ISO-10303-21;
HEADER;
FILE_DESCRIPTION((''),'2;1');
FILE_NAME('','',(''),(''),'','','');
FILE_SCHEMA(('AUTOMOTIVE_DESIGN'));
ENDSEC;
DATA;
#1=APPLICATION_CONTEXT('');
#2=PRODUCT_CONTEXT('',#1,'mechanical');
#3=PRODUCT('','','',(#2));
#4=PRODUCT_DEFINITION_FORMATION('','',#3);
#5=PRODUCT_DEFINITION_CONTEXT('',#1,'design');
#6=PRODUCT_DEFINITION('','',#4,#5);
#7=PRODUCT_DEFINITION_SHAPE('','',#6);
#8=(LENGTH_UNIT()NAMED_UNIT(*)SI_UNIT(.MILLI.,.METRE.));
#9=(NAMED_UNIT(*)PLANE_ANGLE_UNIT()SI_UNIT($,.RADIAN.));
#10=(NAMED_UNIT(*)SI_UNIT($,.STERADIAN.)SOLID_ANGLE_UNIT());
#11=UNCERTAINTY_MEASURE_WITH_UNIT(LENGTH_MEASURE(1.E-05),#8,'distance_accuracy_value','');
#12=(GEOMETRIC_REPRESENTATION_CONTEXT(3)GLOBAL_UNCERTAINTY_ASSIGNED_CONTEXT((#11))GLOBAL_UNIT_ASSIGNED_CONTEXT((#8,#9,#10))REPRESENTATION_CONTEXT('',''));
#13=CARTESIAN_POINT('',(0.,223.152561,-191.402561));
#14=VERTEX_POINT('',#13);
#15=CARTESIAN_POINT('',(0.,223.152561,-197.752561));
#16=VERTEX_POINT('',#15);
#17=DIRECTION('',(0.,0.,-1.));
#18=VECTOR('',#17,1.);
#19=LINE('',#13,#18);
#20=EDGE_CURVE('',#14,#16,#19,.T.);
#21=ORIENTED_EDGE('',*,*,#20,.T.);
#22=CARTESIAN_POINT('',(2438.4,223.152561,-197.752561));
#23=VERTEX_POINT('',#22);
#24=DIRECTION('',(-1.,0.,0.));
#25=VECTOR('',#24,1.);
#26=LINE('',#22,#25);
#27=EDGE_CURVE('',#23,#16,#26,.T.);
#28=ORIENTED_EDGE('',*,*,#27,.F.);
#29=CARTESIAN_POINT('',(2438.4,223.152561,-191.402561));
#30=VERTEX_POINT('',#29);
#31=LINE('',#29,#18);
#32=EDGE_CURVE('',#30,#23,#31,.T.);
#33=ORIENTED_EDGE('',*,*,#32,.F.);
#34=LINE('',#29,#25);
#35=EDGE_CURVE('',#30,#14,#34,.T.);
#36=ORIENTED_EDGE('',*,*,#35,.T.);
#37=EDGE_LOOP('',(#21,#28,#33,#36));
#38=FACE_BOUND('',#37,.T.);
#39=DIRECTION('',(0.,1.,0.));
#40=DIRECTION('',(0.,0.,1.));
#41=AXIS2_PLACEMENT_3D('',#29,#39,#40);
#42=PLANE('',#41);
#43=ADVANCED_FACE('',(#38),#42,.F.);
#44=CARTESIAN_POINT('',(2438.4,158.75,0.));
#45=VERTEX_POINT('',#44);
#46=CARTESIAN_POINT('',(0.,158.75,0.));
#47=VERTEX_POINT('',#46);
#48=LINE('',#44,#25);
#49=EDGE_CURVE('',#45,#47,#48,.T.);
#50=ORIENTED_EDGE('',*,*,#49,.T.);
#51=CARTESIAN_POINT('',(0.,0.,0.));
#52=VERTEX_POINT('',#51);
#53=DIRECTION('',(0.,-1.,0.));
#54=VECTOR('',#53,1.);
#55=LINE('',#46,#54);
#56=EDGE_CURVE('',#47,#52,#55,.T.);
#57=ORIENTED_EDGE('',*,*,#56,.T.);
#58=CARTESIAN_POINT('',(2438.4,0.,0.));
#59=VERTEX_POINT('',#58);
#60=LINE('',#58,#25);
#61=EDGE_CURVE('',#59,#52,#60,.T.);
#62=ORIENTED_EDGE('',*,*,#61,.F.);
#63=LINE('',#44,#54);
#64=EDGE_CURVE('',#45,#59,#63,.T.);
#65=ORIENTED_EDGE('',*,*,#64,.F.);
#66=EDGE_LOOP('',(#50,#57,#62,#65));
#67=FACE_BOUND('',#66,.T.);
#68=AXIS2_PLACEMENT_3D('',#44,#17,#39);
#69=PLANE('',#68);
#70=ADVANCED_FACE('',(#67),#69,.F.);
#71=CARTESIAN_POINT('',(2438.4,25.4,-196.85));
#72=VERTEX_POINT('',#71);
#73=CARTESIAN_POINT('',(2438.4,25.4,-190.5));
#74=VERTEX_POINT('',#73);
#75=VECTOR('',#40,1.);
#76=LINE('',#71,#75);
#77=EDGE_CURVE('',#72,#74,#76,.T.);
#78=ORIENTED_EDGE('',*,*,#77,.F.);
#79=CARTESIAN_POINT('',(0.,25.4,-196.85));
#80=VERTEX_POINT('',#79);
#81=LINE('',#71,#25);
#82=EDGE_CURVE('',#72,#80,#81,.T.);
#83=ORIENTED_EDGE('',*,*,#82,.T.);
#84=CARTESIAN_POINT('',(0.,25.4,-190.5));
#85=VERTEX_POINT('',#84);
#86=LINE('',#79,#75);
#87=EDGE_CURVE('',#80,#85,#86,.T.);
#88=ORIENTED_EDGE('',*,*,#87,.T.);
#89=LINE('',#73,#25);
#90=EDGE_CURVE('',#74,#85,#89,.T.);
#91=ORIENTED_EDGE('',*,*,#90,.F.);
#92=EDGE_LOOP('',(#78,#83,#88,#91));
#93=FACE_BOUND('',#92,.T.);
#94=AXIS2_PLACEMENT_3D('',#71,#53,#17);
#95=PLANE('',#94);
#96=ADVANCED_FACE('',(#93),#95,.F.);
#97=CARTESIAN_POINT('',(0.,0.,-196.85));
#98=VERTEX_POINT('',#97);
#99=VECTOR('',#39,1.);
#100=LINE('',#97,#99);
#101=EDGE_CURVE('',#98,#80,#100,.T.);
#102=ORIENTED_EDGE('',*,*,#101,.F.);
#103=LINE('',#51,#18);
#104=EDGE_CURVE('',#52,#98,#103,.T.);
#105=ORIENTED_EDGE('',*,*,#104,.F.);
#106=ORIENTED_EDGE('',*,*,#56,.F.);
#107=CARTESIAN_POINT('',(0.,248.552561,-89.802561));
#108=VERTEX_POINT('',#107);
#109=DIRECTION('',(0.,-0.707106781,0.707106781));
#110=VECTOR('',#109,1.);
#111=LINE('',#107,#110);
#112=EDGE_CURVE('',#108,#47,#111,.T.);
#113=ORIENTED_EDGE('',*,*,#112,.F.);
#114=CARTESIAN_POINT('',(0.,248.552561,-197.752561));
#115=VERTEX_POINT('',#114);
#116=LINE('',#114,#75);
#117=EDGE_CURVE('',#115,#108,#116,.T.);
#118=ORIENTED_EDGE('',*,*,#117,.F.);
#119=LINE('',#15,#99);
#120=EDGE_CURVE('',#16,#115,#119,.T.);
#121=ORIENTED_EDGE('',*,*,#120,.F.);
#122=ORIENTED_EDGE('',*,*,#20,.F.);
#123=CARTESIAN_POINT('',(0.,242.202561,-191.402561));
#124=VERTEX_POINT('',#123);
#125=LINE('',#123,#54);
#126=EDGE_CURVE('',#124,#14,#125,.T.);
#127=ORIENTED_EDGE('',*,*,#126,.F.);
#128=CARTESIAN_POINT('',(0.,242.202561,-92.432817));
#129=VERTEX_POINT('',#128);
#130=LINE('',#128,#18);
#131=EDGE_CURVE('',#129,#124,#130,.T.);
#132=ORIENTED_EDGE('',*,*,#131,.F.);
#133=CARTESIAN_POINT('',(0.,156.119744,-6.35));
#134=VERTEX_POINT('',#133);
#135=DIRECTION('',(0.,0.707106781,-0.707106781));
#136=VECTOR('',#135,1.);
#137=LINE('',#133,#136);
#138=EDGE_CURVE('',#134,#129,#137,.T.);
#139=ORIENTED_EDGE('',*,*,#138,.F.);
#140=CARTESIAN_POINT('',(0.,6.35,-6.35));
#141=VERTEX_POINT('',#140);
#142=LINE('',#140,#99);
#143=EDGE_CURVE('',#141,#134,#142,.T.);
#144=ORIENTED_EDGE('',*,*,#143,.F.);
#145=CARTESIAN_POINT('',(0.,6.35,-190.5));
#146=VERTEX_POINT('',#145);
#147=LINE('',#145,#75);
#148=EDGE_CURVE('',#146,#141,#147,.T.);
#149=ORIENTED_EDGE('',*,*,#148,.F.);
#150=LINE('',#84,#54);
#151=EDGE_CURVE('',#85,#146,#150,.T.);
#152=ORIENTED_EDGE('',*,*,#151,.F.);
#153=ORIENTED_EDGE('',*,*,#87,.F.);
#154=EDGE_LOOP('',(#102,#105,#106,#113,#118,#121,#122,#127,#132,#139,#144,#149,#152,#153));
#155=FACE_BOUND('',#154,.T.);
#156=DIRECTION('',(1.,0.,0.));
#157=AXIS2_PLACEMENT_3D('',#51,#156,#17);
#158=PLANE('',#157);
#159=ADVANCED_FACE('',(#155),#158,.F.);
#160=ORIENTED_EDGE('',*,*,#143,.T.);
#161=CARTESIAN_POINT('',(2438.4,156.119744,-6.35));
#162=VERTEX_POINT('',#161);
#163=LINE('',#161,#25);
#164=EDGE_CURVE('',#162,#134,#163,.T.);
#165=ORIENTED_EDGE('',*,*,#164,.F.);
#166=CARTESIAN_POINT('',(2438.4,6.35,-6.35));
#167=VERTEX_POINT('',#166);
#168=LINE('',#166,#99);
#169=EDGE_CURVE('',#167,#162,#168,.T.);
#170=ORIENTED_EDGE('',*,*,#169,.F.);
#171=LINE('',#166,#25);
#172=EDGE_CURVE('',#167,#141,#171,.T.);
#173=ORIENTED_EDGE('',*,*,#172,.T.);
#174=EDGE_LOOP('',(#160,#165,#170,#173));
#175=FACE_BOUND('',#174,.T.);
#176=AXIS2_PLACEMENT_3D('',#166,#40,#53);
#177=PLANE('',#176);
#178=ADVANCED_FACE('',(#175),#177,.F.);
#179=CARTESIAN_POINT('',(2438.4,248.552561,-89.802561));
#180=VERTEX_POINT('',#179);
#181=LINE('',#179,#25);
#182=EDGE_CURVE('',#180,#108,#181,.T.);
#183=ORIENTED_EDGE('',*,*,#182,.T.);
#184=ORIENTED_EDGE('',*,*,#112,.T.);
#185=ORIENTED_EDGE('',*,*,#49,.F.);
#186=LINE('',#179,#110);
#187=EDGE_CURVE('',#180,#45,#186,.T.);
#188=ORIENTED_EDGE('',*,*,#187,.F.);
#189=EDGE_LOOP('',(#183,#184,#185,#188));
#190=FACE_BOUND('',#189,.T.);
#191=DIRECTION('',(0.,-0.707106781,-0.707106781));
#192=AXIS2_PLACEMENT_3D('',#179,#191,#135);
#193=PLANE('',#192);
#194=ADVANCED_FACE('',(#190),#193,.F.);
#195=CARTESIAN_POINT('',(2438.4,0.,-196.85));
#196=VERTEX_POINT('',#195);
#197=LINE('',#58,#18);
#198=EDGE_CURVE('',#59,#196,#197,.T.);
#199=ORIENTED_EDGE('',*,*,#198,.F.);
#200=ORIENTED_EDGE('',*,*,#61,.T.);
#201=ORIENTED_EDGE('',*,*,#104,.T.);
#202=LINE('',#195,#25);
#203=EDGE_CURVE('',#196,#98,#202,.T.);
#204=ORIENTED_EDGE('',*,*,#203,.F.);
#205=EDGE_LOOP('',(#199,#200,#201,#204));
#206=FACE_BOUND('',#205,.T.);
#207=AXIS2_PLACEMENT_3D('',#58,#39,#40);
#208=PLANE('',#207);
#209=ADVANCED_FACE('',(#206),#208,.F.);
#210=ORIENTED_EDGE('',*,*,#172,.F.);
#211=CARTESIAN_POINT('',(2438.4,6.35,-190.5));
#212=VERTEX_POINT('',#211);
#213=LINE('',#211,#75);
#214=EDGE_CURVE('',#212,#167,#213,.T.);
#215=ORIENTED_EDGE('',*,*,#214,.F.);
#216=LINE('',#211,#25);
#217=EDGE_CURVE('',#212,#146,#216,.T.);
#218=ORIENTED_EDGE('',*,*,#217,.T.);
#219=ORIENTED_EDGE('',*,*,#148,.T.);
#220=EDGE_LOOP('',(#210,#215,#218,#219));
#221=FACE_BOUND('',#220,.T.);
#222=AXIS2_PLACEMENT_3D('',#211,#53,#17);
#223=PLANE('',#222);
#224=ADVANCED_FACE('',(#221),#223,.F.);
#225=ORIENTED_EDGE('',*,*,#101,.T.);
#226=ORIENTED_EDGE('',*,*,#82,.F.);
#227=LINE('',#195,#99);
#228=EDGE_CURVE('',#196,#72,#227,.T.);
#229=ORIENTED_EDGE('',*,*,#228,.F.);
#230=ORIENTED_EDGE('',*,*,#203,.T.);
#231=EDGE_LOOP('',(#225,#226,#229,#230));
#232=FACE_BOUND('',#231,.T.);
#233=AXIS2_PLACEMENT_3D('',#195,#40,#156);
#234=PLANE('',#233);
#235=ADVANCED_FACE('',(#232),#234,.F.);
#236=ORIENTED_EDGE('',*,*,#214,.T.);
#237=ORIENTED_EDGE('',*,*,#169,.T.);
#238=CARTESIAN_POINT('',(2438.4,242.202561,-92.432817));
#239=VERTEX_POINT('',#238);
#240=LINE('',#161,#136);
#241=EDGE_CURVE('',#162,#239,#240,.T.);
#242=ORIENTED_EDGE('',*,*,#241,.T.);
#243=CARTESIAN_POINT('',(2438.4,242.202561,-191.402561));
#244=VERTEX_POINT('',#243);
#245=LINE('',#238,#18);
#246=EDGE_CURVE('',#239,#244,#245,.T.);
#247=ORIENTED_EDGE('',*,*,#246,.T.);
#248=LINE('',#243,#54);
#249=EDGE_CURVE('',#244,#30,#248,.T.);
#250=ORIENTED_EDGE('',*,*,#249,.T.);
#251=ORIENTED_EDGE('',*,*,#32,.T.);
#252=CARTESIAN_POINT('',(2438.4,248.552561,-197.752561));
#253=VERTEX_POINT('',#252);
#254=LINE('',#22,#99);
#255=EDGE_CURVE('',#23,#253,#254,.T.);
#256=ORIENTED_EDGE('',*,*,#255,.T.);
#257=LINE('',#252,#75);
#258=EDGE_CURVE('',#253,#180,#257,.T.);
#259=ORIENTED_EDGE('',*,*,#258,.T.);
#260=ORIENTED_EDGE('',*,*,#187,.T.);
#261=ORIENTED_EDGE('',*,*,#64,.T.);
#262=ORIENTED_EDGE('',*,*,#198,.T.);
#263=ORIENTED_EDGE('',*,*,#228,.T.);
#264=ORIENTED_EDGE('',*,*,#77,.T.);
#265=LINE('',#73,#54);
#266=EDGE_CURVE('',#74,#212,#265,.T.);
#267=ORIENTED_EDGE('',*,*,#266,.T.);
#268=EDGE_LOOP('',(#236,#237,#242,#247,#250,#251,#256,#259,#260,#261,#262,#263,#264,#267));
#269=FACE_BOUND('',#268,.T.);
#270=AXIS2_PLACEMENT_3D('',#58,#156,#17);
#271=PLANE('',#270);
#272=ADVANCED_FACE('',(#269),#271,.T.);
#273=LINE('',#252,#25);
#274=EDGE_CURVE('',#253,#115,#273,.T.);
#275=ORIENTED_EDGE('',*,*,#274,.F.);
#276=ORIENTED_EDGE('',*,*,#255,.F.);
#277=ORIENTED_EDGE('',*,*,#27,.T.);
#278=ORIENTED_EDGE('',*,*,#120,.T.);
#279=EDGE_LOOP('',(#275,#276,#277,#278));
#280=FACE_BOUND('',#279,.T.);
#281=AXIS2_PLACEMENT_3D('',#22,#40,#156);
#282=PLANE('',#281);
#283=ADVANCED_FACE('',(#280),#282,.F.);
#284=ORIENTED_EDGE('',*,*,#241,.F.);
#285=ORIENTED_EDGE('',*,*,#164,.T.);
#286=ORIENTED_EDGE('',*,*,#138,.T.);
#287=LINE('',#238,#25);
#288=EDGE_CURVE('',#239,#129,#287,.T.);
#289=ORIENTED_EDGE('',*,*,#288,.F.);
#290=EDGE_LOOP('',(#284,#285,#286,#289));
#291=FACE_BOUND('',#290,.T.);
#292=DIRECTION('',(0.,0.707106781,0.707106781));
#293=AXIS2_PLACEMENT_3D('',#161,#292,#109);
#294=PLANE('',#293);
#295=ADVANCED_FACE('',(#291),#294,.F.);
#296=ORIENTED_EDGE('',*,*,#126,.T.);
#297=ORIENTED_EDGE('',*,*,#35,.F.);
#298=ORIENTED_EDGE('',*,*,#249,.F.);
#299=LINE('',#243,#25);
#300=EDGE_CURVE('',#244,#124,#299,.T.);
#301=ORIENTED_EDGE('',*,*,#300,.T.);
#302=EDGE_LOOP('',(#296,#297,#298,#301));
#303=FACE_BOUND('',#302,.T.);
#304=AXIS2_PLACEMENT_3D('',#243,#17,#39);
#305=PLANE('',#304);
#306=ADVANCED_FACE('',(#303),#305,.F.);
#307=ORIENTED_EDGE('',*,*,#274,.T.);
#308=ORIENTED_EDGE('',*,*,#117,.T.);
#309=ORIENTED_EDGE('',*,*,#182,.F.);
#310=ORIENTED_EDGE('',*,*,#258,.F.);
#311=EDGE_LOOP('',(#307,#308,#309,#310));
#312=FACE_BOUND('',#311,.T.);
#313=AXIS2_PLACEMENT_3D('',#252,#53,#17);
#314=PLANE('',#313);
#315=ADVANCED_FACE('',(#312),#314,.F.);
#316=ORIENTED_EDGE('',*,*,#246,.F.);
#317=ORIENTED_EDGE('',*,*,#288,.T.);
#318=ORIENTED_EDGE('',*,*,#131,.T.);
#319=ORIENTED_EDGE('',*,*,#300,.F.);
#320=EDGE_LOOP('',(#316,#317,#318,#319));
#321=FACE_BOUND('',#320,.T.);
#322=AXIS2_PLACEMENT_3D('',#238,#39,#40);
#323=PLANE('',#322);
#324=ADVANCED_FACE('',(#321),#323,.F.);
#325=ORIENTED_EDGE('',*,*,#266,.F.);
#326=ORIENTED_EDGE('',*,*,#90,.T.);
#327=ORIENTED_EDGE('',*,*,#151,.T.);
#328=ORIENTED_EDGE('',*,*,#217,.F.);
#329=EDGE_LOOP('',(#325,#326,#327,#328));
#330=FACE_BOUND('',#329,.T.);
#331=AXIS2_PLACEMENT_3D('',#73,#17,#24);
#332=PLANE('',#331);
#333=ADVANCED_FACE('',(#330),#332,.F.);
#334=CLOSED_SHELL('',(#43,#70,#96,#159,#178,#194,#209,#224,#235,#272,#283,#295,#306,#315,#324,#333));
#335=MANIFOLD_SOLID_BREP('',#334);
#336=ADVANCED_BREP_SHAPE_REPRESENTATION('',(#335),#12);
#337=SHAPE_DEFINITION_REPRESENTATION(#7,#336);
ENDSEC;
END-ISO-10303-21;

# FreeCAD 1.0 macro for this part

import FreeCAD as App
import Part
import Sketcher

V = App.Vector
Q = App.Units.Quantity

doc = App.newDocument("Part")
params = doc.addObject("Spreadsheet::Sheet", "Params")
for row, (alias, value) in enumerate([
    ("sketch1_width", "1 in"),
    ("sketch1_length", "5 in"),
    ("sketch1_width2", "0.75 in"),
    ("sketch1_height", "7.75 in"),
    ("sketch1_height2", "0.25 in"),
    ("pad1_length", "96 in"),
], start=1):
    params.set(f"A{row}", alias)
    params.set(f"B{row}", "=" + value)
    params.setAlias(f"B{row}", alias)

body = doc.addObject("PartDesign::Body", "Body")

sketch1 = body.newObject("Sketcher::SketchObject", "Sketch")
sketch1.AttachmentSupport = (doc.getObject("YZ_Plane"), [""])
sketch1.MapMode = "FlatFace"
sketch1.addGeometry(Part.LineSegment(V(0, 0, 0), V(0, -197, 0)), False)
sketch1.addGeometry(Part.LineSegment(V(0, -197, 0), V(25, -197, 0)), False)
sketch1.addGeometry(Part.LineSegment(V(25, -197, 0), V(25, -190, 0)), False)
sketch1.addGeometry(Part.LineSegment(V(25, -190, 0), V(6, -190, 0)), False)
sketch1.addGeometry(Part.LineSegment(V(6, -190, 0), V(6, -6, 0)), False)
sketch1.addGeometry(Part.LineSegment(V(6, -6, 0), V(156, -6, 0)), False)
sketch1.addGeometry(Part.LineSegment(V(156, -6, 0), V(242, -92, 0)), False)
sketch1.addGeometry(Part.LineSegment(V(242, -92, 0), V(242, -191, 0)), False)
sketch1.addGeometry(Part.LineSegment(V(242, -191, 0), V(223, -191, 0)), False)
sketch1.addGeometry(Part.LineSegment(V(223, -191, 0), V(223, -198, 0)), False)
sketch1.addGeometry(Part.LineSegment(V(223, -198, 0), V(249, -198, 0)), False)
sketch1.addGeometry(Part.LineSegment(V(249, -198, 0), V(249, -90, 0)), False)
sketch1.addGeometry(Part.LineSegment(V(249, -90, 0), V(159, 0, 0)), False)
sketch1.addGeometry(Part.LineSegment(V(159, 0, 0), V(0, 0, 0)), False)
sketch1.addConstraint(Sketcher.Constraint("Coincident", 0, 2, 1, 1))
sketch1.addConstraint(Sketcher.Constraint("Coincident", 1, 2, 2, 1))
sketch1.addConstraint(Sketcher.Constraint("Coincident", 2, 2, 3, 1))
sketch1.addConstraint(Sketcher.Constraint("Coincident", 3, 2, 4, 1))
sketch1.addConstraint(Sketcher.Constraint("Coincident", 4, 2, 5, 1))
sketch1.addConstraint(Sketcher.Constraint("Coincident", 5, 2, 6, 1))
sketch1.addConstraint(Sketcher.Constraint("Coincident", 6, 2, 7, 1))
sketch1.addConstraint(Sketcher.Constraint("Coincident", 7, 2, 8, 1))
sketch1.addConstraint(Sketcher.Constraint("Coincident", 8, 2, 9, 1))
sketch1.addConstraint(Sketcher.Constraint("Coincident", 9, 2, 10, 1))
sketch1.addConstraint(Sketcher.Constraint("Coincident", 10, 2, 11, 1))
sketch1.addConstraint(Sketcher.Constraint("Coincident", 11, 2, 12, 1))
sketch1.addConstraint(Sketcher.Constraint("Coincident", 12, 2, 13, 1))
sketch1.addConstraint(Sketcher.Constraint("Coincident", 13, 2, 0, 1))
sketch1.addConstraint(Sketcher.Constraint("Vertical", 0))
sketch1.addConstraint(Sketcher.Constraint("Horizontal", 1))
sketch1.addConstraint(Sketcher.Constraint("Vertical", 2))
sketch1.addConstraint(Sketcher.Constraint("Horizontal", 3))
sketch1.addConstraint(Sketcher.Constraint("Vertical", 4))
sketch1.addConstraint(Sketcher.Constraint("Horizontal", 5))
sketch1.addConstraint(Sketcher.Constraint("Vertical", 7))
sketch1.addConstraint(Sketcher.Constraint("Horizontal", 8))
sketch1.addConstraint(Sketcher.Constraint("Vertical", 9))
sketch1.addConstraint(Sketcher.Constraint("Horizontal", 10))
sketch1.addConstraint(Sketcher.Constraint("Vertical", 11))
sketch1.addConstraint(Sketcher.Constraint("Horizontal", 13))
sketch1.addConstraint(Sketcher.Constraint("Coincident", 13, 2, -1, 1))
sketch1.addConstraint(Sketcher.Constraint("Parallel", 6, 12))
sketch1.addConstraint(Sketcher.Constraint("Equal", 3, 8))
sketch1.addConstraint(Sketcher.Constraint("Equal", 1, 10))
sketch1.addConstraint(Sketcher.Constraint("Equal", 2, 9))
sketch1.addConstraint(Sketcher.Constraint("DistanceX", 1, 1, 1, 2, Q("1 in")))
sketch1.addConstraint(Sketcher.Constraint("Distance", 12, Q("5 in")))
sketch1.addConstraint(Sketcher.Constraint("Angle", 6, Q("-45 deg")))
sketch1.addConstraint(Sketcher.Constraint("DistanceY", 7, 2, 11, 2, Q("4 in")))
sketch1.addConstraint(Sketcher.Constraint("DistanceX", 4, 2, 12, 2, Q("6 in")))
sketch1.addConstraint(Sketcher.Constraint("DistanceX", 3, 2, 3, 1, Q("0.75 in")))
sketch1.addConstraint(Sketcher.Constraint("DistanceY", 0, 2, 0, 1, Q("7.75 in")))
sketch1.addConstraint(Sketcher.Constraint("DistanceY", 2, 1, 2, 2, Q("0.25 in")))
sketch1.addConstraint(Sketcher.Constraint("DistanceY", 4, 1, 4, 2, Q("7.25 in")))
sketch1.addConstraint(Sketcher.Constraint("DistanceX", 5, 1, 5, 2, Q("149.769744 mm")))
sketch1.setExpression("Constraints[31]", "Params.sketch1_width")
sketch1.setExpression("Constraints[32]", "Params.sketch1_length")
sketch1.setExpression("Constraints[36]", "Params.sketch1_width2")
sketch1.setExpression("Constraints[37]", "Params.sketch1_height")
sketch1.setExpression("Constraints[38]", "Params.sketch1_height2")
pad1 = body.newObject("PartDesign::Pad", "Pad")
pad1.Profile = sketch1
pad1.setExpression("Length", "Params.pad1_length")

doc.recompute()
